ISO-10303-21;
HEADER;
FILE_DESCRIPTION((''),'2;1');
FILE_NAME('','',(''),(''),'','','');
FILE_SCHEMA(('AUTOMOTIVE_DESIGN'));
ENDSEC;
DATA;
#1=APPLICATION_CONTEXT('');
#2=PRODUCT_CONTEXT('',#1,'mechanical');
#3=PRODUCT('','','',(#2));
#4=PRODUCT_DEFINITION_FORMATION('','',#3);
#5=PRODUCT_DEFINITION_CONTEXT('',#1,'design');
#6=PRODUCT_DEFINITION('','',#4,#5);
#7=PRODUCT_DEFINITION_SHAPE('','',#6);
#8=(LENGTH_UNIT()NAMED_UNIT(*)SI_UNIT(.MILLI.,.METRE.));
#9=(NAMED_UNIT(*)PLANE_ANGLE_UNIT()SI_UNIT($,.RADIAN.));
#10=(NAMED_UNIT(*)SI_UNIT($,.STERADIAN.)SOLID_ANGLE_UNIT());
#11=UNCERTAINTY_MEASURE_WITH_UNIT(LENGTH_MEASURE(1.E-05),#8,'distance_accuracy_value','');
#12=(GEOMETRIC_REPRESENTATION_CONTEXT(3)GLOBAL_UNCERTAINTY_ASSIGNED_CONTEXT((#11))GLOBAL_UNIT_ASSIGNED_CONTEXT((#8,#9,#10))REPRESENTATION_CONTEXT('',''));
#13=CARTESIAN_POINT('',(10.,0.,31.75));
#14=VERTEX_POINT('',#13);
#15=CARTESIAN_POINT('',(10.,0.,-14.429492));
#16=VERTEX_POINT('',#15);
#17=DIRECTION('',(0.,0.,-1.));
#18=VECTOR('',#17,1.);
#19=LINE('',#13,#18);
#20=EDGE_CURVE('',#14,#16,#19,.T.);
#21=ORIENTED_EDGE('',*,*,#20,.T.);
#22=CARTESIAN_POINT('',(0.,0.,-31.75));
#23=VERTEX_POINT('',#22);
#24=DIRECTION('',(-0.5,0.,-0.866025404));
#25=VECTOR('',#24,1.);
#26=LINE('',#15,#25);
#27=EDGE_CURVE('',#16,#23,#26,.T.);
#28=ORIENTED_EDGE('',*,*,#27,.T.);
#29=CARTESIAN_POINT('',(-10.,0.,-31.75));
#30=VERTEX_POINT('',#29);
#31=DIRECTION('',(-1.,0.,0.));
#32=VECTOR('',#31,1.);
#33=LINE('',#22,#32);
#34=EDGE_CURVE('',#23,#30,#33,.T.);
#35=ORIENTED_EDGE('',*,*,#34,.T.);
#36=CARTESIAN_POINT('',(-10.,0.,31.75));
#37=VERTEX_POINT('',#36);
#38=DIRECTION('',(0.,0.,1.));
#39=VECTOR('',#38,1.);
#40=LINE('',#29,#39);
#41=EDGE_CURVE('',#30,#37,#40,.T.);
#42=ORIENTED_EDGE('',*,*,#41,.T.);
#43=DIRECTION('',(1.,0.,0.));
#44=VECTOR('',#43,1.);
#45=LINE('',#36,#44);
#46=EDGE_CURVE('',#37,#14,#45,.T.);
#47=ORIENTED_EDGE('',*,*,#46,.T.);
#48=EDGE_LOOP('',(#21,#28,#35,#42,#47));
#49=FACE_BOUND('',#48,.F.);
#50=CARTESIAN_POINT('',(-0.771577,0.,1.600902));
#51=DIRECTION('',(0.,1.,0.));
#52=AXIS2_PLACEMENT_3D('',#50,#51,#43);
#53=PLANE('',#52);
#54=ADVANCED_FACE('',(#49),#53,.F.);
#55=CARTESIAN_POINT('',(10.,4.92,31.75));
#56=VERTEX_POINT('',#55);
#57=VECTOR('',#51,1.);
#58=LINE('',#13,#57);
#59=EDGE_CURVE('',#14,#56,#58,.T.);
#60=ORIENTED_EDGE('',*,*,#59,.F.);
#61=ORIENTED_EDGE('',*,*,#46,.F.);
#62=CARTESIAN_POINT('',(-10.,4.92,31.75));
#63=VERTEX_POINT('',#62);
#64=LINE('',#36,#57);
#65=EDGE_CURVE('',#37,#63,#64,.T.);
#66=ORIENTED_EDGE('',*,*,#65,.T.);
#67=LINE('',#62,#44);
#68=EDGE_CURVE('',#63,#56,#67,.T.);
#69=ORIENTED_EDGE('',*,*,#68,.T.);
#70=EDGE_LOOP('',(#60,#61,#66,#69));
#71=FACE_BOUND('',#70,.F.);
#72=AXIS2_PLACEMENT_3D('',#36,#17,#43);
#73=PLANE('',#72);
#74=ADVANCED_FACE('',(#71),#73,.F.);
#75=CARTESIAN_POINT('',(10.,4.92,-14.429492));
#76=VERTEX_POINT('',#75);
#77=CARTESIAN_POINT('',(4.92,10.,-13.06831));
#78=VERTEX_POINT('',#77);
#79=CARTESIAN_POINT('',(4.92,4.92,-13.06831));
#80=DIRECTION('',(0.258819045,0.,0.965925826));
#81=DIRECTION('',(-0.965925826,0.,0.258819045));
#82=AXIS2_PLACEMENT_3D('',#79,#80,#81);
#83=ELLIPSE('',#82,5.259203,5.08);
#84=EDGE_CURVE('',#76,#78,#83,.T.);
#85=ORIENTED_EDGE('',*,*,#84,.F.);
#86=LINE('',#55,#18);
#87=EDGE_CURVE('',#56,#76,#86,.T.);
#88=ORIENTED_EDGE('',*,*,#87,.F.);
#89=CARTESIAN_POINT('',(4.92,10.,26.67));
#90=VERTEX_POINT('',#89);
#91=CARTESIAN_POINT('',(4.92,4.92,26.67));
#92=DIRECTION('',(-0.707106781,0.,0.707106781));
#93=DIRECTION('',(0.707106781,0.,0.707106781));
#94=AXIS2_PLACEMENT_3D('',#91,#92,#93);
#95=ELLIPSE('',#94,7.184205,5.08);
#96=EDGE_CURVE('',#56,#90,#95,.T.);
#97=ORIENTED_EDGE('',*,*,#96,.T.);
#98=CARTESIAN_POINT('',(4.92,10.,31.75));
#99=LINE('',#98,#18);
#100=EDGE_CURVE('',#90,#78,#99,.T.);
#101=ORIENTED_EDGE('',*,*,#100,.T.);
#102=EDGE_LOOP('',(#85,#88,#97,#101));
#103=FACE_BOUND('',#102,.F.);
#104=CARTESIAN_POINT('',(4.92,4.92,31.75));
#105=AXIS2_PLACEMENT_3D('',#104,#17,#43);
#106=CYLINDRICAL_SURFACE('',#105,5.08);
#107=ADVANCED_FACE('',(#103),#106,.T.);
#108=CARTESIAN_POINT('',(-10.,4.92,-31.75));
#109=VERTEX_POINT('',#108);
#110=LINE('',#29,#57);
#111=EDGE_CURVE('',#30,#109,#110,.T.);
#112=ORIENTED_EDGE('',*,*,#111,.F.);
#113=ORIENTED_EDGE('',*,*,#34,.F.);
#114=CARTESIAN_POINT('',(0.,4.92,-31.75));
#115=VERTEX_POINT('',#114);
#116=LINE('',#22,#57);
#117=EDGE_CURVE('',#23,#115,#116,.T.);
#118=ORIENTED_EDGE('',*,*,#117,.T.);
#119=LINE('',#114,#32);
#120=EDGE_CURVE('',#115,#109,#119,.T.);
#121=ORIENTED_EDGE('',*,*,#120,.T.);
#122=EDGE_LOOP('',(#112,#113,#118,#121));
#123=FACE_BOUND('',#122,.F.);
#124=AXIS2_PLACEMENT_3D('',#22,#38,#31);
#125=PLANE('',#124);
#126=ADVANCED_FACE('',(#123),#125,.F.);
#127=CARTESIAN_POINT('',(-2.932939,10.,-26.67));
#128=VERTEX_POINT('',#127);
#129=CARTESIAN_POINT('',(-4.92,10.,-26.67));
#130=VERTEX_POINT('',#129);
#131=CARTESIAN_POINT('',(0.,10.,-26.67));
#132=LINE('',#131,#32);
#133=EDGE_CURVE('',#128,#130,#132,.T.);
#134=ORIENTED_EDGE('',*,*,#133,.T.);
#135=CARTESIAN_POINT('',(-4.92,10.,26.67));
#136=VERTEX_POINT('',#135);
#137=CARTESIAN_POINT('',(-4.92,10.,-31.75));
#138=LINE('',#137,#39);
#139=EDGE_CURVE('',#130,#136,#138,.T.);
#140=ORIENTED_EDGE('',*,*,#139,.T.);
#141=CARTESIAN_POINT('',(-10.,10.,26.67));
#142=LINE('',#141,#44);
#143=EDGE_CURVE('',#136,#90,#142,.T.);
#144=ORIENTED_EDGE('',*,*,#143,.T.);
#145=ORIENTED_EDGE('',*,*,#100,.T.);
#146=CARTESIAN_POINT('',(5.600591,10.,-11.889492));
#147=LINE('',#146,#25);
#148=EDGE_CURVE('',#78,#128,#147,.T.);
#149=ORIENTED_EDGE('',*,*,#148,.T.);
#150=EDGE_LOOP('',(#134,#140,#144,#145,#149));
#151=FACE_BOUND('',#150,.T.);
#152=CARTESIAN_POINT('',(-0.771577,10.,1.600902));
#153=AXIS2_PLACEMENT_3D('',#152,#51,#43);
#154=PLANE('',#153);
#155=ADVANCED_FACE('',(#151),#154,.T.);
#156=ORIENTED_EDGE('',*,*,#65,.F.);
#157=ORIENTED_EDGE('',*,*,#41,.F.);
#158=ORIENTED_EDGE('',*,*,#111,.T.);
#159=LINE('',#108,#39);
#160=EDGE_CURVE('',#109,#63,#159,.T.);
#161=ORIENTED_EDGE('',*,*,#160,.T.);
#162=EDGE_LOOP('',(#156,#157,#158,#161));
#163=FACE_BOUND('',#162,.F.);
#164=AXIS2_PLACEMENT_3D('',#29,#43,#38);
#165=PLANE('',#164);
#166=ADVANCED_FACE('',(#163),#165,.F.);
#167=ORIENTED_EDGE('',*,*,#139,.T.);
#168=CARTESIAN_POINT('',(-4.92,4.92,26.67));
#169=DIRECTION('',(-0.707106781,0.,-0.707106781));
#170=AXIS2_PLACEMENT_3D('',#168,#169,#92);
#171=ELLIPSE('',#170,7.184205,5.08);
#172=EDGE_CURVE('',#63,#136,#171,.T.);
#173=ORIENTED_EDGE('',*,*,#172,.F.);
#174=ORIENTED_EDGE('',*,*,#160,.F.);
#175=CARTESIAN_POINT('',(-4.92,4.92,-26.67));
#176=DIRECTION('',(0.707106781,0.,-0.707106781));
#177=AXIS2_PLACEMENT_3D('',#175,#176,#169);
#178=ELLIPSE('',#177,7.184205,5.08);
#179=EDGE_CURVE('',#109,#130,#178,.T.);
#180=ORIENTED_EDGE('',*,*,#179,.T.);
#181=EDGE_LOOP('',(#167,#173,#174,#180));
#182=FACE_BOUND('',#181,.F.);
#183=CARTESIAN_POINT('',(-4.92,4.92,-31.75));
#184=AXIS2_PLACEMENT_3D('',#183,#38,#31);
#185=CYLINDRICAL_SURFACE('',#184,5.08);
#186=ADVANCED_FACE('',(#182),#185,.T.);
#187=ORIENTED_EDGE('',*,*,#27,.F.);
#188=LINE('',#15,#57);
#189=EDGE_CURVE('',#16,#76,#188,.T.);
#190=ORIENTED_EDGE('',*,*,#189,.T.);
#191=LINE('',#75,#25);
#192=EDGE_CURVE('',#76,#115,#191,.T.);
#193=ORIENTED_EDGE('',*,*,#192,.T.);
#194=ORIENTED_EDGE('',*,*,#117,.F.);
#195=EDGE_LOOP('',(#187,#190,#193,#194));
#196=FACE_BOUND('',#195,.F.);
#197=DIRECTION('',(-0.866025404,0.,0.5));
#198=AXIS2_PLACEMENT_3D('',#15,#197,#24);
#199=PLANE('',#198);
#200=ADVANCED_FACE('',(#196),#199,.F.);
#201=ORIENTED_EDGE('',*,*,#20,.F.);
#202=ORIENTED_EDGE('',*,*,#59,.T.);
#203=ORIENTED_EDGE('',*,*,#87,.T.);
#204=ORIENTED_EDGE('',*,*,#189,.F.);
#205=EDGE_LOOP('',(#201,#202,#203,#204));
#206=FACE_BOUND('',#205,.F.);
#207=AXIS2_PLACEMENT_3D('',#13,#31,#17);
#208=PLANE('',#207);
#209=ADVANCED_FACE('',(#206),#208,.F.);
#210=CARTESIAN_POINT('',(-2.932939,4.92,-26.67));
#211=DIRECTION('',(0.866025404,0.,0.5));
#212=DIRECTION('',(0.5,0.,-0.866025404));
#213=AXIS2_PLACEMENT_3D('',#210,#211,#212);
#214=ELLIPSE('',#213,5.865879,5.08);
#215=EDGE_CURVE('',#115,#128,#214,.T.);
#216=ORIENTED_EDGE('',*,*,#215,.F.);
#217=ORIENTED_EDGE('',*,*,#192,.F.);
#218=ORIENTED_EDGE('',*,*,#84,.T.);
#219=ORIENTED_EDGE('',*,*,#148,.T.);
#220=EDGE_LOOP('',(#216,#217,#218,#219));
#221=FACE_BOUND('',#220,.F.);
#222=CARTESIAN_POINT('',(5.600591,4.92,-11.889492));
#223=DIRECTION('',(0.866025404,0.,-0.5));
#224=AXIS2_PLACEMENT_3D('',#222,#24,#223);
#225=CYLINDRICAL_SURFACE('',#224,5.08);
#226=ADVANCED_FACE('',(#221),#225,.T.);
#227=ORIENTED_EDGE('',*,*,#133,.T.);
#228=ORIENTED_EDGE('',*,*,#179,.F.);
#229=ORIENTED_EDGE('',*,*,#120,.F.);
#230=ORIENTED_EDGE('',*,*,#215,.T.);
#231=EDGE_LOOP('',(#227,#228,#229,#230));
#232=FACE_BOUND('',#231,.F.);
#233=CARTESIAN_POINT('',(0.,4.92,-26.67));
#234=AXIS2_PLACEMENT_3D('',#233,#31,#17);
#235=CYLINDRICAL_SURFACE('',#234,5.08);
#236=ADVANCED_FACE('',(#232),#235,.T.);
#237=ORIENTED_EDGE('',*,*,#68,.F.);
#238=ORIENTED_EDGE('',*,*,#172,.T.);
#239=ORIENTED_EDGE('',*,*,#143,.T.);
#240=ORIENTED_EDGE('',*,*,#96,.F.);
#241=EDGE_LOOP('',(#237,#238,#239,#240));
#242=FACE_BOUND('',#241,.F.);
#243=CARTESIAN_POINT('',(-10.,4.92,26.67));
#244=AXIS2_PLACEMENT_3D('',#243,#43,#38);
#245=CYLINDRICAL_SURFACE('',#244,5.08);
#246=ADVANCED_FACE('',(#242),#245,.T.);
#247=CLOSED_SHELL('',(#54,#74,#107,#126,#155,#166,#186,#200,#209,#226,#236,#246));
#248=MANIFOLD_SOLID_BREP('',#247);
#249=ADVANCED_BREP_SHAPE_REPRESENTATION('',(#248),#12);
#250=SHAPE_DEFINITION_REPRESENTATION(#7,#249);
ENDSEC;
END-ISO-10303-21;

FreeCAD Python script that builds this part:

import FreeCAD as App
import Part
import Sketcher

V = App.Vector
Q = App.Units.Quantity


def edges_at(feature, points):
    """Names of the edges that pass closest to the given points."""
    edges = feature.Shape.Edges
    near = lambda p: min(range(len(edges)), key=lambda i: edges[i].distToShape(Part.Vertex(*p))[0])
    return sorted({f"Edge{near(p) + 1}" for p in points})

doc = App.newDocument("Part")
body = doc.addObject("PartDesign::Body", "Body")

# Sketch on XZ plane
sketch1 = body.newObject("Sketcher::SketchObject", "Sketch")
sketch1.AttachmentSupport = (doc.getObject("XZ_Plane"), [""])
sketch1.MapMode = "FlatFace"
sketch1.addGeometry([
    Part.LineSegment(V(10, 32, 0), V(10, -14, 0)),  # 0
    Part.LineSegment(V(10, -14, 0), V(0, -32, 0)),  # 1
    Part.LineSegment(V(0, -32, 0), V(-10, -32, 0)),  # 2
    Part.LineSegment(V(-10, -32, 0), V(-10, 32, 0)),  # 3
    Part.LineSegment(V(-10, 32, 0), V(10, 32, 0)),  # 4
], False)
sketch1.addConstraint([
    Sketcher.Constraint("Coincident", 0, 2, 1, 1),
    Sketcher.Constraint("Coincident", 1, 2, 2, 1),
    Sketcher.Constraint("Coincident", 2, 2, 3, 1),
    Sketcher.Constraint("Coincident", 3, 2, 4, 1),
    Sketcher.Constraint("Coincident", 4, 2, 0, 1),
    Sketcher.Constraint("Vertical", 0),
    Sketcher.Constraint("Horizontal", 2),
    Sketcher.Constraint("Vertical", 3),
    Sketcher.Constraint("Horizontal", 4),
    Sketcher.Constraint("Symmetric", 2, 2, 4, 2, -1, 1),
    Sketcher.Constraint("PointOnObject", 1, 2, -2),
    Sketcher.Constraint("DistanceX", 2, 2, 2, 1, 10.0),
    Sketcher.Constraint("Angle", 1, Q("-120 deg")),
    Sketcher.Constraint("DistanceY", 3, 1, 3, 2, 63.5),
])
pad1 = body.newObject("PartDesign::Pad", "Pad")
pad1.Profile = sketch1
pad1.Length = 10
pad1.Reversed = True
doc.recompute()

fillet = body.newObject("PartDesign::Fillet", "Fillet")
fillet.Base = (pad1, edges_at(pad1, [
    (5, 10, -23.09),
    (-5, 10, -31.75),
    (-10, 10, 0),
    (0, 10, 31.75),
    (10, 10, 8.66),
]))
fillet.Radius = 5.08

doc.recompute()
